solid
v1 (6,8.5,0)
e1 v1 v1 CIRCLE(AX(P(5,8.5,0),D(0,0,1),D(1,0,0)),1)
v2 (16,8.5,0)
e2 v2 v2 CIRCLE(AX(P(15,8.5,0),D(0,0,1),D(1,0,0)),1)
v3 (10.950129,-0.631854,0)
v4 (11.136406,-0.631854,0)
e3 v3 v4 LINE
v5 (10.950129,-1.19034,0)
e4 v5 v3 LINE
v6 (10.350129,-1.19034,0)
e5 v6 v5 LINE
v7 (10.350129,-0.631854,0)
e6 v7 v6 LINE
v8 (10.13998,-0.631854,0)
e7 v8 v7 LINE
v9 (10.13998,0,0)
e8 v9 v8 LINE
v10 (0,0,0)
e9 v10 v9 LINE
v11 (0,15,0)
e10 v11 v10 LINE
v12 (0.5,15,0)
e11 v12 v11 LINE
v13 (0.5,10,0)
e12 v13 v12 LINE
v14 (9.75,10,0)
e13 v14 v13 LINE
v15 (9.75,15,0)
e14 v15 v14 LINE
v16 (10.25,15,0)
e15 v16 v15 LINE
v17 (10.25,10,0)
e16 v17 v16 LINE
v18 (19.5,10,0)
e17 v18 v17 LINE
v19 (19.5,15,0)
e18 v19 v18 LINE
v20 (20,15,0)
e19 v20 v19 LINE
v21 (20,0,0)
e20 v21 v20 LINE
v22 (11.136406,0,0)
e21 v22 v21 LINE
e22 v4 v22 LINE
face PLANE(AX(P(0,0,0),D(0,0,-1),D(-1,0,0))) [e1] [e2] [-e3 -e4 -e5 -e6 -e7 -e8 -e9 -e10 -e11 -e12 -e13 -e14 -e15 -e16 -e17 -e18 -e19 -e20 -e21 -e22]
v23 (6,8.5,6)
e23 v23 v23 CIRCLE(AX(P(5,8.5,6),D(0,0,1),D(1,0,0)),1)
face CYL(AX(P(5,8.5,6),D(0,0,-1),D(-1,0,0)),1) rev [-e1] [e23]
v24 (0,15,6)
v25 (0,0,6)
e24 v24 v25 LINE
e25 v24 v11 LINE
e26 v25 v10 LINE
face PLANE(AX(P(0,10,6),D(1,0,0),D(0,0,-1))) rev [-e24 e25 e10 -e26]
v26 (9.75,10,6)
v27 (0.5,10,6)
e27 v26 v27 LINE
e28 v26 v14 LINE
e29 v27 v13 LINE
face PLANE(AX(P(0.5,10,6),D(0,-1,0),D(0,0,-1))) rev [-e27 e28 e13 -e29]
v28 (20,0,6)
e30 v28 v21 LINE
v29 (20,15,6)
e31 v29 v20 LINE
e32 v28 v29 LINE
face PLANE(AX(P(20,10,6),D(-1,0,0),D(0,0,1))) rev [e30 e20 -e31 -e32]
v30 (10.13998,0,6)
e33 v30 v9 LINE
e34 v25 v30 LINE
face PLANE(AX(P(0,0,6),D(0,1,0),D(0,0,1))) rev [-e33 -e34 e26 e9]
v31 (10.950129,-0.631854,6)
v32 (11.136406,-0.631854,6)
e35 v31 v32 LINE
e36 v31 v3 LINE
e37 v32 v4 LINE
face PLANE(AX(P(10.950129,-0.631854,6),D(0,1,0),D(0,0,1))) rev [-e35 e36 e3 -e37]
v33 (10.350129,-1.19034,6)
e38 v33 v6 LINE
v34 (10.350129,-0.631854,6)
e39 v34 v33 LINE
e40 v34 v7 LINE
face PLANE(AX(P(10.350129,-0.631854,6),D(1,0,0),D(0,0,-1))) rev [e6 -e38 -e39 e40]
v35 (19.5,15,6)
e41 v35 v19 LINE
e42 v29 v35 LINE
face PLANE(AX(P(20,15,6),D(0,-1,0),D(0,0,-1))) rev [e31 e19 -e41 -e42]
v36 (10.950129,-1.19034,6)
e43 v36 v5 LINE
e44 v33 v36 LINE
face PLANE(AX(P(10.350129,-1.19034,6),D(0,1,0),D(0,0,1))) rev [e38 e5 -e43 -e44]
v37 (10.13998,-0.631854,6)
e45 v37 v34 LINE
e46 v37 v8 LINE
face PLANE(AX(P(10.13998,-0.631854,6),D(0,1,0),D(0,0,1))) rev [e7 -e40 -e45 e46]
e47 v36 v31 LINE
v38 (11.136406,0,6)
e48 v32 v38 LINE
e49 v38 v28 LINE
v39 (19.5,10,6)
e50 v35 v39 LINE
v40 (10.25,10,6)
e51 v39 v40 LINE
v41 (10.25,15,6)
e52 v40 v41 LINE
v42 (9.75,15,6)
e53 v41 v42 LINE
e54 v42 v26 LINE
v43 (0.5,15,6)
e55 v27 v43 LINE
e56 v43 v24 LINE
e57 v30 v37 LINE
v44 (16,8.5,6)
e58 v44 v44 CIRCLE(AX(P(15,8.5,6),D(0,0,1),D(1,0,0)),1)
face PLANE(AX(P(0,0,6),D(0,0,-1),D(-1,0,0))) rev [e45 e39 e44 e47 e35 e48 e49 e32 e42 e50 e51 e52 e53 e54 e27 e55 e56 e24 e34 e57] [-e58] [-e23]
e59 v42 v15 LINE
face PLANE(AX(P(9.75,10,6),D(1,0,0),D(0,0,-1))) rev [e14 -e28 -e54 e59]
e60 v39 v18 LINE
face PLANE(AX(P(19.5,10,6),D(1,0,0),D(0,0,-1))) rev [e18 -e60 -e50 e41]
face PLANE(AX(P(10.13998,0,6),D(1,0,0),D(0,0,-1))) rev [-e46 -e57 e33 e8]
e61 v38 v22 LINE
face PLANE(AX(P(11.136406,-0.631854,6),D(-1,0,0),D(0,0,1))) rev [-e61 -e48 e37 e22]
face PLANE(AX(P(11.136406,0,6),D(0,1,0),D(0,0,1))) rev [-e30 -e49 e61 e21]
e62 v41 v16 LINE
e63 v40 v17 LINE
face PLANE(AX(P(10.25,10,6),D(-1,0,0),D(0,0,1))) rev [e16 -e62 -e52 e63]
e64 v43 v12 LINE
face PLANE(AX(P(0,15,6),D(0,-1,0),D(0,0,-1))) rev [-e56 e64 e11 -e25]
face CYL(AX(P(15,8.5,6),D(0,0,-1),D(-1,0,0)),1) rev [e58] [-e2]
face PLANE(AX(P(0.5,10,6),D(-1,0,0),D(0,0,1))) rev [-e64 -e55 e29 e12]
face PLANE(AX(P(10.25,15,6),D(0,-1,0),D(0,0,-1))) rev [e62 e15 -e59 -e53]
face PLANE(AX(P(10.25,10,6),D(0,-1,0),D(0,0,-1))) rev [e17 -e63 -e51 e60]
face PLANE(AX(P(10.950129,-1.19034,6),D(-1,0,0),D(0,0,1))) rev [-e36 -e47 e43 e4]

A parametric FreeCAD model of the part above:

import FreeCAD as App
import Part
import Sketcher

V = App.Vector


def add_polygon(sketch, points):
    """Adds a closed chain of lines whose ends are joined by coincident constraints."""
    first, n = sketch.GeometryCount, len(points)
    for a, b in zip(points, points[1:] + points[:1]):
        sketch.addGeometry(Part.LineSegment(App.Vector(*a, 0), App.Vector(*b, 0)), False)
    for i in range(n):
        sketch.addConstraint(Sketcher.Constraint("Coincident", first + i, 2, first + (i + 1) % n, 1))

doc = App.newDocument("Part")
params = doc.addObject("Spreadsheet::Sheet", "Params")
for row, (alias, value) in enumerate([
    ("sketch1_diameter", "2 mm"),
    ("sketch1_height", "5 mm"),
    ("sketch1_height2", "15 mm"),
    ("sketch1_width", "0.5 mm"),
    ("sketch1_width2", "0.6 mm"),
    ("pad1_length", "6 mm"),
], start=1):
    params.set(f"A{row}", alias)
    params.set(f"B{row}", "=" + value)
    params.setAlias(f"B{row}", alias)

body = doc.addObject("PartDesign::Body", "Body")

# Sketch on XY plane
sketch1 = body.newObject("Sketcher::SketchObject", "Sketch")
sketch1.AttachmentSupport = (doc.getObject("XY_Plane"), [""])
sketch1.MapMode = "FlatFace"
add_polygon(sketch1, [(19.5, 10), (10.25, 10), (10.25, 15), (9.75, 15), (9.75, 10), (0.5, 10), (0.5, 15), (0, 15), (0, 0), (10.14, 0), (10.14, -0.63), (10.35, -0.63), (10.35, -1.19), (10.95, -1.19), (10.95, -0.63), (11.14, -0.63), (11.14, 0), (20, 0), (20, 15), (19.5, 15)])  # lines 0-19
sketch1.addGeometry(Part.Circle(V(15, 8.5, 0), V(0, 0, 1), 1), False)  # 20
sketch1.addGeometry(Part.Circle(V(5, 8.5, 0), V(0, 0, 1), 1), False)  # 21
sketch1.addConstraint(Sketcher.Constraint("Horizontal", 0))
sketch1.addConstraint(Sketcher.Constraint("Vertical", 1))
sketch1.addConstraint(Sketcher.Constraint("Horizontal", 2))
sketch1.addConstraint(Sketcher.Constraint("Vertical", 3))
sketch1.addConstraint(Sketcher.Constraint("Horizontal", 4))
sketch1.addConstraint(Sketcher.Constraint("Vertical", 5))
sketch1.addConstraint(Sketcher.Constraint("Horizontal", 6))
sketch1.addConstraint(Sketcher.Constraint("Vertical", 7))
sketch1.addConstraint(Sketcher.Constraint("Horizontal", 8))
sketch1.addConstraint(Sketcher.Constraint("Vertical", 9))
sketch1.addConstraint(Sketcher.Constraint("Horizontal", 10))
sketch1.addConstraint(Sketcher.Constraint("Vertical", 11))
sketch1.addConstraint(Sketcher.Constraint("Horizontal", 12))
sketch1.addConstraint(Sketcher.Constraint("Vertical", 13))
sketch1.addConstraint(Sketcher.Constraint("Horizontal", 14))
sketch1.addConstraint(Sketcher.Constraint("Vertical", 15))
sketch1.addConstraint(Sketcher.Constraint("Horizontal", 16))
sketch1.addConstraint(Sketcher.Constraint("Vertical", 17))
sketch1.addConstraint(Sketcher.Constraint("Horizontal", 18))
sketch1.addConstraint(Sketcher.Constraint("Vertical", 19))
sketch1.addConstraint(Sketcher.Constraint("Coincident", 7, 2, -1, 1))
sketch1.addConstraint(Sketcher.Constraint("Equal", 20, 21))
sketch1.addConstraint(Sketcher.Constraint("PointOnObject", 15, 2, -1))
sketch1.addConstraint(Sketcher.Constraint("Horizontal", 20, 3, 21, 3))
sketch1.addConstraint(Sketcher.Constraint("Horizontal", 0, 2, 3, 2))
sketch1.addConstraint(Sketcher.Constraint("Horizontal", 2, 2, 5, 2))
sketch1.addConstraint(Sketcher.Constraint("Horizontal", 10, 2, 13, 2))
sketch1.addConstraint(Sketcher.Constraint("Horizontal", 6, 2, 17, 2))
sketch1.addConstraint(Sketcher.Constraint("Equal", 0, 4))
sketch1.addConstraint(Sketcher.Constraint("Equal", 2, 6))
sketch1.addConstraint(Sketcher.Constraint("Equal", 6, 18))
sketch1.addConstraint(Sketcher.Constraint("Diameter", 20, 2.0))
sketch1.addConstraint(Sketcher.Constraint("DistanceY", 1, 1, 1, 2, 5.0))
sketch1.addConstraint(Sketcher.Constraint("DistanceY", 7, 2, 7, 1, 15.0))
sketch1.addConstraint(Sketcher.Constraint("DistanceX", 2, 2, 2, 1, 0.5))
sketch1.addConstraint(Sketcher.Constraint("DistanceX", 12, 1, 12, 2, 0.6))
sketch1.addConstraint(Sketcher.Constraint("DistanceX", -1, 1, 20, 3, 15.0))
sketch1.addConstraint(Sketcher.Constraint("DistanceX", -1, 1, 21, 3, 5.0))
sketch1.addConstraint(Sketcher.Constraint("DistanceX", -1, 1, 16, 2, 20.0))
sketch1.addConstraint(Sketcher.Constraint("DistanceY", -1, 1, 20, 3, 8.5))
sketch1.addConstraint(Sketcher.Constraint("DistanceX", 8, 1, 8, 2, 10.13998))
sketch1.addConstraint(Sketcher.Constraint("DistanceX", 10, 1, 10, 2, 0.210148))
sketch1.addConstraint(Sketcher.Constraint("DistanceX", 14, 1, 14, 2, 0.186277))
sketch1.addConstraint(Sketcher.Constraint("DistanceY", 9, 2, 9, 1, 0.631854))
sketch1.addConstraint(Sketcher.Constraint("DistanceY", 11, 2, 11, 1, 0.558486))
sketch1.setExpression("Constraints[51]", "Params.sketch1_diameter")
sketch1.setExpression("Constraints[52]", "Params.sketch1_height")
sketch1.setExpression("Constraints[53]", "Params.sketch1_height2")
sketch1.setExpression("Constraints[54]", "Params.sketch1_width")
sketch1.setExpression("Constraints[55]", "Params.sketch1_width2")
pad1 = body.newObject("PartDesign::Pad", "Pad")
pad1.Profile = sketch1
pad1.setExpression("Length", "Params.pad1_length")

doc.recompute()
